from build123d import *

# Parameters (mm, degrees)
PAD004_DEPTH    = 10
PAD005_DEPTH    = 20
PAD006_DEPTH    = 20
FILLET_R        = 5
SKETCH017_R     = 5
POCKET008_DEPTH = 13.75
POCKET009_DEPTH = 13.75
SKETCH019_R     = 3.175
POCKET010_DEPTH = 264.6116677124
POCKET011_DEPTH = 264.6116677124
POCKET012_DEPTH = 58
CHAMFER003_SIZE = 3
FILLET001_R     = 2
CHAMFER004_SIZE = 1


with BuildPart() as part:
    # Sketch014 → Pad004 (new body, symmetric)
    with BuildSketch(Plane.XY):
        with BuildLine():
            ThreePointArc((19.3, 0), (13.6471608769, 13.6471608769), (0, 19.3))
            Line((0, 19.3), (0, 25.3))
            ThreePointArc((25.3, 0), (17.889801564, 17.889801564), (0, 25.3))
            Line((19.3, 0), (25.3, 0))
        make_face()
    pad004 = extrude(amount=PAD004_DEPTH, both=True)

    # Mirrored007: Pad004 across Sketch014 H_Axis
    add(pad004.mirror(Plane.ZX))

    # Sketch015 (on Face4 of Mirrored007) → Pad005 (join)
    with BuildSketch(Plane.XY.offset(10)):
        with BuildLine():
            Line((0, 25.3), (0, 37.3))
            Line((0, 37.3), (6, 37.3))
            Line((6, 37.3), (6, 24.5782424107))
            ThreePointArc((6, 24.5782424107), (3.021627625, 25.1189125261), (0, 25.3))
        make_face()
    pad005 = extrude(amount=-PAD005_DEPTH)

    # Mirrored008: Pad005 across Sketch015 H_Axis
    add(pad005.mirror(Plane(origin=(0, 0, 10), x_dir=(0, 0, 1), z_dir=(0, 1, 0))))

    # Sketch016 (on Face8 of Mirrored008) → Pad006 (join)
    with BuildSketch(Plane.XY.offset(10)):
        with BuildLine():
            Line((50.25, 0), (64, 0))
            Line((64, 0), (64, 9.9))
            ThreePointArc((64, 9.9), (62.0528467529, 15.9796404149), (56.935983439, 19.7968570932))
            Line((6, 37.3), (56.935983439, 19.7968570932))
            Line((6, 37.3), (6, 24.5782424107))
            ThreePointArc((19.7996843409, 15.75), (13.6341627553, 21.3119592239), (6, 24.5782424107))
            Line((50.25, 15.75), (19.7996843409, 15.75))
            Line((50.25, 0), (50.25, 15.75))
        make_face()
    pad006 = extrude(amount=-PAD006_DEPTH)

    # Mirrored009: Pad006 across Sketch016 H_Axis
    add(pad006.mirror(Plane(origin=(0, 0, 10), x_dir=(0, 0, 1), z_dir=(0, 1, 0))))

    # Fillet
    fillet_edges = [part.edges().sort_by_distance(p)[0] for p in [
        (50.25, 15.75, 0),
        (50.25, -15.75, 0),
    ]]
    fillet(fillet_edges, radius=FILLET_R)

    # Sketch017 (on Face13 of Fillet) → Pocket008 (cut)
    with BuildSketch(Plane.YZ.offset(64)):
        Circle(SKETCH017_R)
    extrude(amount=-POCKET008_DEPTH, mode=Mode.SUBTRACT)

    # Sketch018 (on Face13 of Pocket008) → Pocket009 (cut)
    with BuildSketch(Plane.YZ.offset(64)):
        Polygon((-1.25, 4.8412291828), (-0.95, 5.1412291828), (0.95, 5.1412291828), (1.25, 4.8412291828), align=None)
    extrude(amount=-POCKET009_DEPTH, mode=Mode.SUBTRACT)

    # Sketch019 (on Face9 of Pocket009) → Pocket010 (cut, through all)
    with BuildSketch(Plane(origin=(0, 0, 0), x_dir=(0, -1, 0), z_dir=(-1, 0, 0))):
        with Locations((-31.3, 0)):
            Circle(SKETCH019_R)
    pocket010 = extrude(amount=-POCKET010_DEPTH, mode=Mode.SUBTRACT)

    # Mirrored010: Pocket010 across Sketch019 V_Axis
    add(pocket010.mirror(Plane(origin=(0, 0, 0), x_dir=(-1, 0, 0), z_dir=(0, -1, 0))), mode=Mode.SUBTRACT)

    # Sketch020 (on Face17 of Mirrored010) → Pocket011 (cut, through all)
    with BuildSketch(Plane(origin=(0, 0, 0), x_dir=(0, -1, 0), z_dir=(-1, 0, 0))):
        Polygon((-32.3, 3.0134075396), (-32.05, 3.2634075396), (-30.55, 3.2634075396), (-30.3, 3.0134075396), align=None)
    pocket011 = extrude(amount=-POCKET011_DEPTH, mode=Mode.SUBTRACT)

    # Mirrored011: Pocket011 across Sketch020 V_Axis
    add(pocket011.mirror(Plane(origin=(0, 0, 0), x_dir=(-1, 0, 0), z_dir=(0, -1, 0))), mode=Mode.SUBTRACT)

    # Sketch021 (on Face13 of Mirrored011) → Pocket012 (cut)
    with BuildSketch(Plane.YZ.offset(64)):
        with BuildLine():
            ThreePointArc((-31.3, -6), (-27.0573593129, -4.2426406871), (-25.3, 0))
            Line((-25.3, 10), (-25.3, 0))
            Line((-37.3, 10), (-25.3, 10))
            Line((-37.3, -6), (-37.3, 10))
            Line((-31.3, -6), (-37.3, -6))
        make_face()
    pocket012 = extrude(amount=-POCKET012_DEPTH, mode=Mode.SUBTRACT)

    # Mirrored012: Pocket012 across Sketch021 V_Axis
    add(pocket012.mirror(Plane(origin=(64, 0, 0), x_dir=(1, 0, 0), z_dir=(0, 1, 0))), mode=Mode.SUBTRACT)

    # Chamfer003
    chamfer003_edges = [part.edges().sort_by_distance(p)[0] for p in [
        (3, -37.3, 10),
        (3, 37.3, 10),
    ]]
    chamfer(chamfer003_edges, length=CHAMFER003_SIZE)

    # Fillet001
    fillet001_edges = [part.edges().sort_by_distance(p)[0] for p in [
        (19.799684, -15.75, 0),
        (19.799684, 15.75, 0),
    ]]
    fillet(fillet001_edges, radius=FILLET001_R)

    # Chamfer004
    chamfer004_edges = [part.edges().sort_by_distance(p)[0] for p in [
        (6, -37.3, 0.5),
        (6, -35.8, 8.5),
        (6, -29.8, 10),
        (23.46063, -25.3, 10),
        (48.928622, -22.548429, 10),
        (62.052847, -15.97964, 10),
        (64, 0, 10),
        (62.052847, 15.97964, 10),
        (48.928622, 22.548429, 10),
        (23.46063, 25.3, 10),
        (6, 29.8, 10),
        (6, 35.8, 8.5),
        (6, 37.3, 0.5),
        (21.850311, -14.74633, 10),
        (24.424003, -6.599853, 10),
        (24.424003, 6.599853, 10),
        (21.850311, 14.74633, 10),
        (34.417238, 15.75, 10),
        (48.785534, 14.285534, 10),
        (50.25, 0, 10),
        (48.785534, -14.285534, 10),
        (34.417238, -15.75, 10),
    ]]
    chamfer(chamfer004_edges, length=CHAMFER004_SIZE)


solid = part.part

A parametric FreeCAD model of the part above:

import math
import FreeCAD as App
import Part
import Sketcher

V = App.Vector
Q = App.Units.Quantity


def edges_at(feature, points):
    """Names of the edges that pass closest to the given points."""
    edges = feature.Shape.Edges
    near = lambda p: min(range(len(edges)), key=lambda i: edges[i].distToShape(Part.Vertex(*p))[0])
    return sorted({f"Edge{near(p) + 1}" for p in points})

doc = App.newDocument("Part")
body = doc.addObject("PartDesign::Body", "Body")

sketch1 = body.newObject("Sketcher::SketchObject", "Sketch")
sketch1.AttachmentSupport = (doc.getObject("XY_Plane"), [""])
sketch1.MapMode = "FlatFace"
sketch1.addGeometry(Part.ArcOfCircle(Part.Circle(V(0, 0, 0), V(0, 0, 1), 19), math.radians(0), math.radians(90)), False)
sketch1.addGeometry(Part.LineSegment(V(19, 0, 0), V(25, 0, 0)), False)
sketch1.addGeometry(Part.ArcOfCircle(Part.Circle(V(0, 0, 0), V(0, 0, 1), 25), math.radians(0), math.radians(90)), False)
sketch1.addGeometry(Part.LineSegment(V(0, 25, 0), V(0, 19, 0)), False)
sketch1.addConstraint(Sketcher.Constraint("Coincident", 0, 1, 1, 1))
sketch1.addConstraint(Sketcher.Constraint("Coincident", 1, 2, 2, 1))
sketch1.addConstraint(Sketcher.Constraint("Coincident", 2, 2, 3, 1))
sketch1.addConstraint(Sketcher.Constraint("Coincident", 3, 2, 0, 2))
sketch1.addConstraint(Sketcher.Constraint("Horizontal", 1))
sketch1.addConstraint(Sketcher.Constraint("Vertical", 3))
sketch1.addConstraint(Sketcher.Constraint("Coincident", 0, 3, -1, 1))
sketch1.addConstraint(Sketcher.Constraint("Coincident", 2, 3, -1, 1))
sketch1.addConstraint(Sketcher.Constraint("PointOnObject", 0, 1, -1))
sketch1.addConstraint(Sketcher.Constraint("PointOnObject", 2, 2, -2))
sketch1.addConstraint(Sketcher.Constraint("Radius", 0, Q("19.3 mm")))
sketch1.addConstraint(Sketcher.Constraint("Radius", 2, Q("25.3 mm")))
pad1 = body.newObject("PartDesign::Pad", "Pad")
pad1.Profile = sketch1
pad1.Length = 20
pad1.Midplane = True
doc.recompute()

mirrored = body.newObject("PartDesign::Mirrored", "Mirrored")
mirrored.Originals = [pad1]
mirrored.MirrorPlane = (doc.getObject("XZ_Plane"), [""])
body.Tip = mirrored

sketch2 = body.newObject("Sketcher::SketchObject", "Sketch001")
sketch2.AttachmentSupport = (doc.getObject("XY_Plane"), [""])
sketch2.MapMode = "FlatFace"
sketch2.AttachmentOffset = App.Placement(V(0, 0, 10), App.Rotation())
sketch2.addGeometry(Part.LineSegment(V(0, 37, 0), V(0, 25, 0)), False)
sketch2.addGeometry(Part.ArcOfCircle(Part.Circle(V(0, 0, 0), V(0, 0, 1), 25), math.radians(76.28), math.radians(90)), False)
sketch2.addGeometry(Part.LineSegment(V(6, 25, 0), V(6, 37, 0)), False)
sketch2.addGeometry(Part.LineSegment(V(6, 37, 0), V(0, 37, 0)), False)
sketch2.addConstraint(Sketcher.Constraint("Coincident", 0, 2, 1, 2))
sketch2.addConstraint(Sketcher.Constraint("Coincident", 1, 1, 2, 1))
sketch2.addConstraint(Sketcher.Constraint("Coincident", 2, 2, 3, 1))
sketch2.addConstraint(Sketcher.Constraint("Coincident", 3, 2, 0, 1))
sketch2.addConstraint(Sketcher.Constraint("Vertical", 0))
sketch2.addConstraint(Sketcher.Constraint("Vertical", 2))
sketch2.addConstraint(Sketcher.Constraint("Horizontal", 3))
sketch2.addConstraint(Sketcher.Constraint("Coincident", 1, 3, -1, 1))
sketch2.addConstraint(Sketcher.Constraint("PointOnObject", 0, 2, -2))
sketch2.addConstraint(Sketcher.Constraint("Radius", 1, Q("25.3 mm")))
sketch2.addConstraint(Sketcher.Constraint("DistanceX", 3, 2, 3, 1, Q("6 mm")))
sketch2.addConstraint(Sketcher.Constraint("DistanceY", 0, 2, 0, 1, Q("12 mm")))
pad2 = body.newObject("PartDesign::Pad", "Pad001")
pad2.Profile = sketch2
pad2.Length = 20
pad2.Reversed = True
doc.recompute()

mirrored2 = body.newObject("PartDesign::Mirrored", "Mirrored001")
mirrored2.Originals = [pad2]
mirrored2.MirrorPlane = (doc.getObject("XZ_Plane"), [""])
body.Tip = mirrored2

sketch3 = body.newObject("Sketcher::SketchObject", "Sketch002")
sketch3.AttachmentSupport = (doc.getObject("XY_Plane"), [""])
sketch3.MapMode = "FlatFace"
sketch3.AttachmentOffset = App.Placement(V(0, 0, 10), App.Rotation())
sketch3.addGeometry(Part.LineSegment(V(50, 0, 0), V(64, 0, 0)), False)
sketch3.addGeometry(Part.LineSegment(V(64, 0, 0), V(64, 10, 0)), False)
sketch3.addGeometry(Part.ArcOfCircle(Part.Circle(V(54, 10, 0), V(0, 0, 1), 10), math.radians(0), math.radians(71)), False)
sketch3.addGeometry(Part.LineSegment(V(57, 20, 0), V(6, 37, 0)), False)
sketch3.addGeometry(Part.LineSegment(V(6, 37, 0), V(6, 25, 0)), False)
sketch3.addGeometry(Part.ArcOfCircle(Part.Circle(V(0, 0, 0), V(0, 0, 1), 25), math.radians(39), math.radians(76)), False)
sketch3.addGeometry(Part.LineSegment(V(20, 16, 0), V(50, 16, 0)), False)
sketch3.addGeometry(Part.LineSegment(V(50, 16, 0), V(50, 0, 0)), False)
sketch3.addConstraint(Sketcher.Constraint("Coincident", 0, 2, 1, 1))
sketch3.addConstraint(Sketcher.Constraint("Tangent", 1, 2, 2, 1))
sketch3.addConstraint(Sketcher.Constraint("Tangent", 2, 2, 3, 1))
sketch3.addConstraint(Sketcher.Constraint("Coincident", 3, 2, 4, 1))
sketch3.addConstraint(Sketcher.Constraint("Coincident", 4, 2, 5, 2))
sketch3.addConstraint(Sketcher.Constraint("Coincident", 5, 1, 6, 1))
sketch3.addConstraint(Sketcher.Constraint("Coincident", 6, 2, 7, 1))
sketch3.addConstraint(Sketcher.Constraint("Coincident", 7, 2, 0, 1))
sketch3.addConstraint(Sketcher.Constraint("Horizontal", 0))
sketch3.addConstraint(Sketcher.Constraint("Vertical", 1))
sketch3.addConstraint(Sketcher.Constraint("Vertical", 4))
sketch3.addConstraint(Sketcher.Constraint("Horizontal", 6))
sketch3.addConstraint(Sketcher.Constraint("Vertical", 7))
sketch3.addConstraint(Sketcher.Constraint("Coincident", 5, 3, -1, 1))
sketch3.addConstraint(Sketcher.Constraint("PointOnObject", 0, 2, -1))
sketch3.addConstraint(Sketcher.Constraint("Radius", 5, Q("25.3 mm")))
sketch3.addConstraint(Sketcher.Constraint("DistanceY", 1, 1, 1, 2, Q("9.9 mm")))
sketch3.addConstraint(Sketcher.Constraint("DistanceX", -1, 1, 0, 2, Q("64 mm")))
sketch3.addConstraint(Sketcher.Constraint("DistanceX", -1, 1, 3, 2, Q("6 mm")))
sketch3.addConstraint(Sketcher.Constraint("DistanceX", 0, 1, 0, 2, Q("13.75 mm")))
sketch3.addConstraint(Sketcher.Constraint("DistanceY", 7, 2, 7, 1, Q("15.75 mm")))
sketch3.addConstraint(Sketcher.Constraint("DistanceY", -1, 1, 3, 2, Q("37.3 mm")))
sketch3.addConstraint(Sketcher.Constraint("Radius", 2, Q("10.464876 mm")))
pad3 = body.newObject("PartDesign::Pad", "Pad002")
pad3.Profile = sketch3
pad3.Length = 20
pad3.Reversed = True
doc.recompute()

mirrored3 = body.newObject("PartDesign::Mirrored", "Mirrored002")
mirrored3.Originals = [pad3]
mirrored3.MirrorPlane = (doc.getObject("XZ_Plane"), [""])
body.Tip = mirrored3
doc.recompute()

fillet = body.newObject("PartDesign::Fillet", "Fillet")
fillet.Base = (mirrored3, edges_at(mirrored3, [(50.25, 15.75, 0), (50.25, -15.75, 0)]))
fillet.Radius = 5

sketch4 = body.newObject("Sketcher::SketchObject", "Sketch003")
sketch4.AttachmentSupport = (doc.getObject("YZ_Plane"), [""])
sketch4.MapMode = "FlatFace"
sketch4.AttachmentOffset = App.Placement(V(0, 0, 64), App.Rotation())
sketch4.addGeometry(Part.Circle(V(0, 0, 0), V(0, 0, 1), 5), False)
sketch4.addConstraint(Sketcher.Constraint("Coincident", 0, 3, -1, 1))
sketch4.addConstraint(Sketcher.Constraint("Diameter", 0, Q("10 mm")))
pocket1 = body.newObject("PartDesign::Pocket", "Pocket")
pocket1.Profile = sketch4
pocket1.Length = 13.75

sketch5 = body.newObject("Sketcher::SketchObject", "Sketch004")
sketch5.AttachmentSupport = (doc.getObject("YZ_Plane"), [""])
sketch5.MapMode = "FlatFace"
sketch5.AttachmentOffset = App.Placement(V(0, 0, 64), App.Rotation())
sketch5.addGeometry(Part.LineSegment(V(-0.95, 5.14, 0), V(-1.25, 4.84, 0)), False)
sketch5.addGeometry(Part.LineSegment(V(-1.25, 4.84, 0), V(1.25, 4.84, 0)), False)
sketch5.addGeometry(Part.LineSegment(V(1.25, 4.84, 0), V(0.95, 5.14, 0)), False)
sketch5.addGeometry(Part.LineSegment(V(0.95, 5.14, 0), V(-0.95, 5.14, 0)), False)
sketch5.addConstraint(Sketcher.Constraint("Coincident", 0, 2, 1, 1))
sketch5.addConstraint(Sketcher.Constraint("Coincident", 1, 2, 2, 1))
sketch5.addConstraint(Sketcher.Constraint("Coincident", 2, 2, 3, 1))
sketch5.addConstraint(Sketcher.Constraint("Coincident", 3, 2, 0, 1))
sketch5.addConstraint(Sketcher.Constraint("Horizontal", 1))
sketch5.addConstraint(Sketcher.Constraint("Horizontal", 3))
sketch5.addConstraint(Sketcher.Constraint("Perpendicular", 0, 2))
sketch5.addConstraint(Sketcher.Constraint("Equal", 0, 2))
sketch5.addConstraint(Sketcher.Constraint("DistanceX", 1, 1, 1, 2, Q("2.5 mm")))
sketch5.addConstraint(Sketcher.Constraint("DistanceX", 3, 2, 3, 1, Q("1.9 mm")))
sketch5.addConstraint(Sketcher.Constraint("DistanceX", 0, 2, -1, 1, Q("1.25 mm")))
sketch5.addConstraint(Sketcher.Constraint("DistanceY", -1, 1, 0, 2, Q("4.841229 mm")))
pocket2 = body.newObject("PartDesign::Pocket", "Pocket001")
pocket2.Profile = sketch5
pocket2.Length = 13.75

sketch6 = body.newObject("Sketcher::SketchObject", "Sketch005")
sketch6.AttachmentSupport = (doc.getObject("YZ_Plane"), [""])
sketch6.MapMode = "FlatFace"
sketch6.addGeometry(Part.Circle(V(31.3, 0, 0), V(0, 0, 1), 3.2), False)
sketch6.addConstraint(Sketcher.Constraint("PointOnObject", 0, 3, -1))
sketch6.addConstraint(Sketcher.Constraint("Diameter", 0, Q("6.35 mm")))
sketch6.addConstraint(Sketcher.Constraint("DistanceX", -1, 1, 0, 3, Q("31.3 mm")))
pocket3 = body.newObject("PartDesign::Pocket", "Pocket002")
pocket3.Profile = sketch6
pocket3.Type = "ThroughAll"
pocket3.Reversed = True
doc.recompute()

mirrored4 = body.newObject("PartDesign::Mirrored", "Mirrored003")
mirrored4.Originals = [pocket3]
mirrored4.MirrorPlane = (doc.getObject("XZ_Plane"), [""])
body.Tip = mirrored4

sketch7 = body.newObject("Sketcher::SketchObject", "Sketch006")
sketch7.AttachmentSupport = (doc.getObject("YZ_Plane"), [""])
sketch7.MapMode = "FlatFace"
sketch7.addGeometry(Part.LineSegment(V(32.05, 3.26, 0), V(32.3, 3.01, 0)), False)
sketch7.addGeometry(Part.LineSegment(V(32.3, 3.01, 0), V(30.3, 3.01, 0)), False)
sketch7.addGeometry(Part.LineSegment(V(30.3, 3.01, 0), V(30.55, 3.26, 0)), False)
sketch7.addGeometry(Part.LineSegment(V(30.55, 3.26, 0), V(32.05, 3.26, 0)), False)
sketch7.addConstraint(Sketcher.Constraint("Coincident", 0, 2, 1, 1))
sketch7.addConstraint(Sketcher.Constraint("Coincident", 1, 2, 2, 1))
sketch7.addConstraint(Sketcher.Constraint("Coincident", 2, 2, 3, 1))
sketch7.addConstraint(Sketcher.Constraint("Coincident", 3, 2, 0, 1))
sketch7.addConstraint(Sketcher.Constraint("Horizontal", 1))
sketch7.addConstraint(Sketcher.Constraint("Horizontal", 3))
sketch7.addConstraint(Sketcher.Constraint("Perpendicular", 0, 2))
sketch7.addConstraint(Sketcher.Constraint("Equal", 0, 2))
sketch7.addConstraint(Sketcher.Constraint("DistanceX", 1, 2, 1, 1, Q("2 mm")))
sketch7.addConstraint(Sketcher.Constraint("DistanceX", 3, 1, 3, 2, Q("1.5 mm")))
sketch7.addConstraint(Sketcher.Constraint("DistanceX", -1, 1, 0, 2, Q("32.3 mm")))
sketch7.addConstraint(Sketcher.Constraint("DistanceY", -1, 1, 0, 2, Q("3.013408 mm")))
pocket4 = body.newObject("PartDesign::Pocket", "Pocket003")
pocket4.Profile = sketch7
pocket4.Type = "ThroughAll"
pocket4.Reversed = True
doc.recompute()

mirrored5 = body.newObject("PartDesign::Mirrored", "Mirrored004")
mirrored5.Originals = [pocket4]
mirrored5.MirrorPlane = (doc.getObject("XZ_Plane"), [""])
body.Tip = mirrored5

sketch8 = body.newObject("Sketcher::SketchObject", "Sketch007")
sketch8.AttachmentSupport = (doc.getObject("YZ_Plane"), [""])
sketch8.MapMode = "FlatFace"
sketch8.AttachmentOffset = App.Placement(V(0, 0, 64), App.Rotation())
sketch8.addGeometry(Part.ArcOfCircle(Part.Circle(V(-31, 0, 0), V(0, 0, 1), 6), math.radians(-90), math.radians(0)), False)
sketch8.addGeometry(Part.LineSegment(V(-25, 0, 0), V(-25, 10, 0)), False)
sketch8.addGeometry(Part.LineSegment(V(-25, 10, 0), V(-37, 10, 0)), False)
sketch8.addGeometry(Part.LineSegment(V(-37, 10, 0), V(-37, -6, 0)), False)
sketch8.addGeometry(Part.LineSegment(V(-37, -6, 0), V(-31, -6, 0)), False)
sketch8.addConstraint(Sketcher.Constraint("Tangent", 0, 2, 1, 1))
sketch8.addConstraint(Sketcher.Constraint("Coincident", 1, 2, 2, 1))
sketch8.addConstraint(Sketcher.Constraint("Coincident", 2, 2, 3, 1))
sketch8.addConstraint(Sketcher.Constraint("Coincident", 3, 2, 4, 1))
sketch8.addConstraint(Sketcher.Constraint("Tangent", 4, 2, 0, 1))
sketch8.addConstraint(Sketcher.Constraint("Vertical", 1))
sketch8.addConstraint(Sketcher.Constraint("Horizontal", 2))
sketch8.addConstraint(Sketcher.Constraint("Vertical", 3))
sketch8.addConstraint(Sketcher.Constraint("Horizontal", 4))
sketch8.addConstraint(Sketcher.Constraint("PointOnObject", 0, 3, -1))
sketch8.addConstraint(Sketcher.Constraint("Radius", 0, Q("6 mm")))
sketch8.addConstraint(Sketcher.Constraint("DistanceX", 2, 2, 2, 1, Q("12 mm")))
sketch8.addConstraint(Sketcher.Constraint("DistanceY", 1, 1, 1, 2, Q("10 mm")))
sketch8.addConstraint(Sketcher.Constraint("DistanceX", 0, 3, -1, 1, Q("31.3 mm")))
pocket5 = body.newObject("PartDesign::Pocket", "Pocket004")
pocket5.Profile = sketch8
pocket5.Length = 58
doc.recompute()

mirrored6 = body.newObject("PartDesign::Mirrored", "Mirrored005")
mirrored6.Originals = [pocket5]
mirrored6.MirrorPlane = (doc.getObject("XZ_Plane"), [""])
body.Tip = mirrored6
doc.recompute()

chamfer = body.newObject("PartDesign::Chamfer", "Chamfer")
chamfer.Base = (mirrored6, edges_at(mirrored6, [(3, -37.3, 10), (3, 37.3, 10)]))
chamfer.Size = 3
doc.recompute()

fillet2 = body.newObject("PartDesign::Fillet", "Fillet001")
fillet2.Base = (chamfer, edges_at(chamfer, [(19.8, -15.75, 0), (19.8, 15.75, 0)]))
fillet2.Radius = 2
doc.recompute()

chamfer2 = body.newObject("PartDesign::Chamfer", "Chamfer001")
chamfer2.Base = (fillet2, edges_at(fillet2, [
    (6, -37.3, 0.5),
    (6, -35.8, 8.5),
    (6, -29.8, 10),
    (23.461, -25.3, 10),
    (48.929, -22.548, 10),
    (62.053, -15.98, 10),
    (64, 0, 10),
    (62.053, 15.98, 10),
    (48.929, 22.548, 10),
    (23.461, 25.3, 10),
    (6, 29.8, 10),
    (6, 35.8, 8.5),
    (6, 37.3, 0.5),
    (21.85, -14.746, 10),
    (24.424, -6.6, 10),
    (24.424, 6.6, 10),
    (21.85, 14.746, 10),
    (34.417, 15.75, 10),
    (48.786, 14.286, 10),
    (50.25, 0, 10),
    (48.786, -14.286, 10),
    (34.417, -15.75, 10),
]))
chamfer2.Size = 1

doc.recompute()
